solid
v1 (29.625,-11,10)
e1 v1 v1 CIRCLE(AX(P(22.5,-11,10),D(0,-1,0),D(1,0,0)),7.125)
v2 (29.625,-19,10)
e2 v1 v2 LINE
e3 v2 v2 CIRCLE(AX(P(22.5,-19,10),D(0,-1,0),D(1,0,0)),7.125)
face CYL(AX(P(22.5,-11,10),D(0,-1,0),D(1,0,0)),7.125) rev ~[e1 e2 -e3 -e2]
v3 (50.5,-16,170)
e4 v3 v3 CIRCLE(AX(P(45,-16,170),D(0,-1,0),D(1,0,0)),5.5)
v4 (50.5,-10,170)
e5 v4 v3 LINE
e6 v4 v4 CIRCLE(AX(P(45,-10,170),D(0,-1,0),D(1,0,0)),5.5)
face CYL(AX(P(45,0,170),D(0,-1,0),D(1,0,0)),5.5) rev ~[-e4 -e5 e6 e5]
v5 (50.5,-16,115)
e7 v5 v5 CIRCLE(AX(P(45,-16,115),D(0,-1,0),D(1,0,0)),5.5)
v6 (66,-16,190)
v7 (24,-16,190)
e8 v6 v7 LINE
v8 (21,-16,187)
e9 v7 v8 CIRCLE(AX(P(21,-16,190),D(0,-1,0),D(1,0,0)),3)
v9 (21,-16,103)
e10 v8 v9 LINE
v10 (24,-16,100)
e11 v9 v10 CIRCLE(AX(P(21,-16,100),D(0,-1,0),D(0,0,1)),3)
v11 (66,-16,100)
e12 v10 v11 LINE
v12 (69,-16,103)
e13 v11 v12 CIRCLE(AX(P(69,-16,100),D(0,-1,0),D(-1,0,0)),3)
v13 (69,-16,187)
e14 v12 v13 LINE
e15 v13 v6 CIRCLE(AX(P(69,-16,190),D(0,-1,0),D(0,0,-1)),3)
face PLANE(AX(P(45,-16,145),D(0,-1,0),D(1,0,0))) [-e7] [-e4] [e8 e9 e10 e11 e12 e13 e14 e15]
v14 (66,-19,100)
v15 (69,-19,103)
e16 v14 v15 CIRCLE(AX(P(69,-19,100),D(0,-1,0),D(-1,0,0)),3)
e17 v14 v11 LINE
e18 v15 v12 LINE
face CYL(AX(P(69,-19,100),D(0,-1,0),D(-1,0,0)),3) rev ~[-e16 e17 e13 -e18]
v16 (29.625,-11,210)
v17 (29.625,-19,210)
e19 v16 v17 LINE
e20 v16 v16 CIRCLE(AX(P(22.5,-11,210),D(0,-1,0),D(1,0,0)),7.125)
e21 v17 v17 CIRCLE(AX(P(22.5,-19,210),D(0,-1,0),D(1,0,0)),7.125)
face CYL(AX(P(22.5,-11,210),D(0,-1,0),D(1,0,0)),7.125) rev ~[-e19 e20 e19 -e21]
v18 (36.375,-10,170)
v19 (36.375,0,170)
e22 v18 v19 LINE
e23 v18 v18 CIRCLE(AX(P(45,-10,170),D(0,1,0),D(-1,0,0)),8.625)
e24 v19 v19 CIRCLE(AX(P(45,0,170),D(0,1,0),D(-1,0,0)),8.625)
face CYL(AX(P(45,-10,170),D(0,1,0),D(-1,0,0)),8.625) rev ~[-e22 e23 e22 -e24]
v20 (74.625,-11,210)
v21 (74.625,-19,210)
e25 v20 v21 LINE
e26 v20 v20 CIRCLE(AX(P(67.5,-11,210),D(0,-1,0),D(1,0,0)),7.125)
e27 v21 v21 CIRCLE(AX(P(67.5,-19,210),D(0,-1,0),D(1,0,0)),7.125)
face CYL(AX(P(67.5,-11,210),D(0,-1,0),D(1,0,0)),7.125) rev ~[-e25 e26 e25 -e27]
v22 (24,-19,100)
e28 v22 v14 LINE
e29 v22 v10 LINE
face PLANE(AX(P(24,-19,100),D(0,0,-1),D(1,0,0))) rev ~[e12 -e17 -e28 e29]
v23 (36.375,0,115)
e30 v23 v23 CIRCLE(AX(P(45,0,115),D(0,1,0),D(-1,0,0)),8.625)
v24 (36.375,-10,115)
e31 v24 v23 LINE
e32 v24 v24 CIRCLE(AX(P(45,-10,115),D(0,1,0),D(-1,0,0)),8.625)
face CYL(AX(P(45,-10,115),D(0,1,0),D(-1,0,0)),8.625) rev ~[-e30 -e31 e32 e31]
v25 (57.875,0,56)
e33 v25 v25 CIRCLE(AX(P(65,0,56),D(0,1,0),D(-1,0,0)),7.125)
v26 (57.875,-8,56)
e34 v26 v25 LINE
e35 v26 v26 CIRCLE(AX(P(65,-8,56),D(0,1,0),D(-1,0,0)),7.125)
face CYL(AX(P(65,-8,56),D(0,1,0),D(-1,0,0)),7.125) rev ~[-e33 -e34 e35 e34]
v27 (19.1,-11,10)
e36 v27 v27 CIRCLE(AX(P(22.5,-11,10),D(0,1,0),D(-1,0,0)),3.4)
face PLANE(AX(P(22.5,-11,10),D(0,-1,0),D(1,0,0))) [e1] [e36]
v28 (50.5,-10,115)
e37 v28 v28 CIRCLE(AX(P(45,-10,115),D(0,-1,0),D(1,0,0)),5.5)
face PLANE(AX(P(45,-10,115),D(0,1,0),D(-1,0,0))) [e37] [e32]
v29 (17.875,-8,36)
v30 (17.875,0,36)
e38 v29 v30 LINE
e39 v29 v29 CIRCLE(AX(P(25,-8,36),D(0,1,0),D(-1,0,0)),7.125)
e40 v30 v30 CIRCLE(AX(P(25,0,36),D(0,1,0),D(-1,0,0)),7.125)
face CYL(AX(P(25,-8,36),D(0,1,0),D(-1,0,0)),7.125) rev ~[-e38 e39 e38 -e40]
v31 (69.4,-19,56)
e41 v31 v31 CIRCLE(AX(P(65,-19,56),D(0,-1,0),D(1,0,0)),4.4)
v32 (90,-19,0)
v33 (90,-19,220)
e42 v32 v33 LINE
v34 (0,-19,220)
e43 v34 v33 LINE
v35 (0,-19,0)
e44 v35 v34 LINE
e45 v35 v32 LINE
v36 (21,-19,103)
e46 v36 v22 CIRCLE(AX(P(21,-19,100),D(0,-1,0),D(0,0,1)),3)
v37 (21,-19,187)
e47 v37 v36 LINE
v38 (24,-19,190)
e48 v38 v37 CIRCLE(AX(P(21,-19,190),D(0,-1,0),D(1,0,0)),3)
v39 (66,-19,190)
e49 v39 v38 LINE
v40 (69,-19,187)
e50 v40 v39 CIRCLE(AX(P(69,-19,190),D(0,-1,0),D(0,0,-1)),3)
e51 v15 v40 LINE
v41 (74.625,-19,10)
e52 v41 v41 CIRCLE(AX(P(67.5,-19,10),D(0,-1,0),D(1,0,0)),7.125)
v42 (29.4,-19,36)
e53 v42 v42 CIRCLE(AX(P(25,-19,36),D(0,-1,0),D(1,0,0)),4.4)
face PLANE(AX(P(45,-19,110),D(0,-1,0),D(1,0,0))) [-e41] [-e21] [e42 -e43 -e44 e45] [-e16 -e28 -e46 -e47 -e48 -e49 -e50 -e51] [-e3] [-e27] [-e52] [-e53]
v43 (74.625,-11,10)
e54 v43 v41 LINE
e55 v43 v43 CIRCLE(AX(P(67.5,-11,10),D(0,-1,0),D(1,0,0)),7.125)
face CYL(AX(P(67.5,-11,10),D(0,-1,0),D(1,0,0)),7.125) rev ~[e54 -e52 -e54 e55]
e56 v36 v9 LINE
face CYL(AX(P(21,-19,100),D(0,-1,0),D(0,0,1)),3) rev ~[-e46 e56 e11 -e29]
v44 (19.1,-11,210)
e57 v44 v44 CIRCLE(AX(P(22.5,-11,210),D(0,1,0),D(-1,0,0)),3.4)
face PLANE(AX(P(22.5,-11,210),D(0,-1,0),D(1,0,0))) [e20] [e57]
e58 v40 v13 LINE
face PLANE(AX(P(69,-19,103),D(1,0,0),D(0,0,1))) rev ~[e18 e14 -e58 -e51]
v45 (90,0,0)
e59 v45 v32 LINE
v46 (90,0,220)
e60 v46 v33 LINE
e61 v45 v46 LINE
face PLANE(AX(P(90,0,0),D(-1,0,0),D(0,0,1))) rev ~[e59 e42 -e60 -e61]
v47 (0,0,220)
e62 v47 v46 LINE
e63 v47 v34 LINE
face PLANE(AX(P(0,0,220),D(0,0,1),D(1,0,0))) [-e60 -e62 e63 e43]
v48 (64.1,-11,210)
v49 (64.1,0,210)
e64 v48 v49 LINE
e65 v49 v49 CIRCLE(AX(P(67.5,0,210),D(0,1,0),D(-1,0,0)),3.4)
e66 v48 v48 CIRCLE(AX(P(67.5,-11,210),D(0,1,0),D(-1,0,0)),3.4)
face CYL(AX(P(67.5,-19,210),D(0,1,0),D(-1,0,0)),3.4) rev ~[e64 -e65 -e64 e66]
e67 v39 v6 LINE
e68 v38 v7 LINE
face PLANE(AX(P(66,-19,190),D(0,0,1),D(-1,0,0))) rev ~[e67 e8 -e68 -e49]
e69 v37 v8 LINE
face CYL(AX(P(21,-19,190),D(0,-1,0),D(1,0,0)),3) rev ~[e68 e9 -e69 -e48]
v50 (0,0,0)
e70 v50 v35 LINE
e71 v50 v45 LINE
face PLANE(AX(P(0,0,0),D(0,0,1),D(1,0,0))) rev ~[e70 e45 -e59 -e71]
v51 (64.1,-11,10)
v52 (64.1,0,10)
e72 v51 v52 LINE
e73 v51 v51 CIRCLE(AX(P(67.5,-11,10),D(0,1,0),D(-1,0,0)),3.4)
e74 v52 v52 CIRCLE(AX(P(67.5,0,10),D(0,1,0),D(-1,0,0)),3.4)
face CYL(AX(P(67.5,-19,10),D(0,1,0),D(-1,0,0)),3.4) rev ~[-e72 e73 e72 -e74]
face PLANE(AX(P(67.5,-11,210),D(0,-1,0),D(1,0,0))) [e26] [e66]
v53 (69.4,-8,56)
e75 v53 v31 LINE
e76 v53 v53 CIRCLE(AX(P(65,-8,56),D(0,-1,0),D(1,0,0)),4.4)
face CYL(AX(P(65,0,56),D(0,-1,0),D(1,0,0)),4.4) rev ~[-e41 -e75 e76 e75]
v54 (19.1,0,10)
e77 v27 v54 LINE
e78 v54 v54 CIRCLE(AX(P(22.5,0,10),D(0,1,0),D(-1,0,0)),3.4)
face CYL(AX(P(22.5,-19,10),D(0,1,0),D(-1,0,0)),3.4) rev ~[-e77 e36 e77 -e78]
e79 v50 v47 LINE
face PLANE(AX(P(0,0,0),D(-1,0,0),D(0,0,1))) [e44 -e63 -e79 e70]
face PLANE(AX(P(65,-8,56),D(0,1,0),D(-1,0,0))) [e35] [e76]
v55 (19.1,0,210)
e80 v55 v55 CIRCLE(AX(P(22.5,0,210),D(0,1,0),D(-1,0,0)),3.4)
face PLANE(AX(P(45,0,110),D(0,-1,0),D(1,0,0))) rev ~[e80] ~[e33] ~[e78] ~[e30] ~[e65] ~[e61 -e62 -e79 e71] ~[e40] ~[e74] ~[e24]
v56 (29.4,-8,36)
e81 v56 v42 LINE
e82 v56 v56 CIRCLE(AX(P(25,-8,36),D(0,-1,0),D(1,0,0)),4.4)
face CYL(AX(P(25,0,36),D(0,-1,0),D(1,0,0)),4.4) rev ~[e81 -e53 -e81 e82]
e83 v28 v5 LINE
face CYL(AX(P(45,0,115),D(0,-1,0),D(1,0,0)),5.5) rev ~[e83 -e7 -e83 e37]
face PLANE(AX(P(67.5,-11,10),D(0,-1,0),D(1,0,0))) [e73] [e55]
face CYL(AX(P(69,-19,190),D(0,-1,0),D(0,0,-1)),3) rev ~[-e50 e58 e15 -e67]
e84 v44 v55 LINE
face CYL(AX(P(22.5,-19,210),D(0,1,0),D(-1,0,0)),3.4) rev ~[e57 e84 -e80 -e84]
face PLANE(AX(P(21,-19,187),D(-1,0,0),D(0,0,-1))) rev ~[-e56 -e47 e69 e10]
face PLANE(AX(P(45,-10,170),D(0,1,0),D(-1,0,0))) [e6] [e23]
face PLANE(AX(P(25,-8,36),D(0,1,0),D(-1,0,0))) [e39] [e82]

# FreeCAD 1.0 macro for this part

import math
import FreeCAD as App
import Part
import Sketcher

V = App.Vector


def add_polygon(sketch, points):
    """Adds a closed chain of lines whose ends are joined by coincident constraints."""
    first, n = sketch.GeometryCount, len(points)
    for a, b in zip(points, points[1:] + points[:1]):
        sketch.addGeometry(Part.LineSegment(App.Vector(*a, 0), App.Vector(*b, 0)), False)
    for i in range(n):
        sketch.addConstraint(Sketcher.Constraint("Coincident", first + i, 2, first + (i + 1) % n, 1))

doc = App.newDocument("Part")
body = doc.addObject("PartDesign::Body", "Body")

# Sketch on XZ plane
sketch1 = doc.addObject("Sketcher::SketchObject", "Sketch")
body.addObject(sketch1)
sketch1.AttachmentSupport = (doc.XZ_Plane, [""])
sketch1.MapMode = "FlatFace"
add_polygon(sketch1, [(0, 220), (0, 0), (90, 0), (90, 220)])  # lines 0-3
sketch1.addConstraint([
    Sketcher.Constraint("Vertical", 0),
    Sketcher.Constraint("Horizontal", 1),
    Sketcher.Constraint("Vertical", 2),
    Sketcher.Constraint("Horizontal", 3),
    Sketcher.Constraint("Coincident", 0, 2, -1, 1),
    Sketcher.Constraint("DistanceX", 1, 1, 1, 2, 90.0),
    Sketcher.Constraint("DistanceY", 0, 2, 0, 1, 220.0),
])
pad1 = doc.addObject("PartDesign::Pad", "Pad")
body.addObject(pad1)
pad1.Profile = sketch1
pad1.Length = 19

# Sketch on XZ plane
sketch2 = doc.addObject("Sketcher::SketchObject", "Sketch001")
body.addObject(sketch2)
sketch2.AttachmentSupport = (doc.XZ_Plane, [""])
sketch2.MapMode = "FlatFace"
sketch2.AttachmentOffset = App.Placement(V(0, 0, 19), App.Rotation())
sketch2.addGeometry([
    Part.Circle(V(22.5, 210, 0), V(0, 0, 1), 3.4),
    Part.Circle(V(67.5, 210, 0), V(0, 0, 1), 3.4),
    Part.Circle(V(22.5, 10, 0), V(0, 0, 1), 3.4),
    Part.Circle(V(67.5, 10, 0), V(0, 0, 1), 3.4),
], False)
sketch2.addConstraint([
    Sketcher.Constraint("Equal", 0, 1),
    Sketcher.Constraint("Equal", 1, 2),
    Sketcher.Constraint("Equal", 2, 3),
    Sketcher.Constraint("Horizontal", 0, 3, 1, 3),
    Sketcher.Constraint("Horizontal", 2, 3, 3, 3),
    Sketcher.Constraint("Vertical", 0, 3, 2, 3),
    Sketcher.Constraint("Vertical", 1, 3, 3, 3),
    Sketcher.Constraint("Diameter", 0, 6.8),
    Sketcher.Constraint("DistanceY", -1, 1, 0, 3, 210.0),
    Sketcher.Constraint("DistanceY", -1, 1, 2, 3, 10.0),
    Sketcher.Constraint("DistanceX", 0, 3, 1, 3, 45.0),
    Sketcher.Constraint("DistanceX", -1, 1, 0, 3, 22.5),
])
doc.recompute()
hole = doc.addObject("PartDesign::Hole", "Hole")
body.addObject(hole)
hole.Profile = sketch2
hole.ThreadType = "None"
hole.Diameter = 6.8
hole.DepthType = "ThroughAll"
hole.HoleCutType = "Counterbore"
hole.HoleCutDiameter = 14.25
hole.HoleCutDepth = 8

# Sketch on XZ plane
sketch3 = doc.addObject("Sketcher::SketchObject", "Sketch002")
body.addObject(sketch3)
sketch3.AttachmentSupport = (doc.XZ_Plane, [""])
sketch3.MapMode = "FlatFace"
sketch3.AttachmentOffset = App.Placement(V(0, 0, 19), App.Rotation())
sketch3.addGeometry([
    Part.ArcOfCircle(Part.Circle(V(21, 190, 0), V(0, 0, 1), 3), math.radians(0), math.radians(270)),  # 0
    Part.LineSegment(V(21, 187, 0), V(21, 103, 0)),  # 1
    Part.ArcOfCircle(Part.Circle(V(21, 100, 0), V(0, 0, 1), 3), math.radians(90), math.radians(360)),  # 2
    Part.LineSegment(V(24, 100, 0), V(66, 100, 0)),  # 3
    Part.ArcOfCircle(Part.Circle(V(69, 100, 0), V(0, 0, 1), 3), math.radians(180), math.radians(450)),  # 4
    Part.LineSegment(V(69, 103, 0), V(69, 187, 0)),  # 5
    Part.ArcOfCircle(Part.Circle(V(69, 190, 0), V(0, 0, 1), 3), math.radians(-90), math.radians(180)),  # 6
    Part.LineSegment(V(66, 190, 0), V(24, 190, 0)),  # 7
], False)
sketch3.addConstraint([
    Sketcher.Constraint("Coincident", 0, 2, 1, 1),
    Sketcher.Constraint("Coincident", 1, 2, 2, 1),
    Sketcher.Constraint("Coincident", 2, 2, 3, 1),
    Sketcher.Constraint("Coincident", 3, 2, 4, 1),
    Sketcher.Constraint("Coincident", 4, 2, 5, 1),
    Sketcher.Constraint("Coincident", 5, 2, 6, 1),
    Sketcher.Constraint("Coincident", 6, 2, 7, 1),
    Sketcher.Constraint("Coincident", 7, 2, 0, 1),
    Sketcher.Constraint("Vertical", 1),
    Sketcher.Constraint("Horizontal", 3),
    Sketcher.Constraint("Vertical", 5),
    Sketcher.Constraint("Horizontal", 7),
    Sketcher.Constraint("Equal", 0, 2),
    Sketcher.Constraint("Equal", 2, 4),
    Sketcher.Constraint("Equal", 4, 6),
    Sketcher.Constraint("Horizontal", 2, 3, 4, 3),
    Sketcher.Constraint("Horizontal", 0, 3, 6, 3),
    Sketcher.Constraint("Horizontal", 4, 3, 2, 2),
    Sketcher.Constraint("Horizontal", 0, 3, 6, 2),
    Sketcher.Constraint("Vertical", 0, 3, 2, 3),
    Sketcher.Constraint("Vertical", 4, 3, 6, 3),
    Sketcher.Constraint("Vertical", 2, 3, 0, 2),
    Sketcher.Constraint("Vertical", 6, 3, 4, 2),
    Sketcher.Constraint("Radius", 0, 3.0),
    Sketcher.Constraint("DistanceX", 3, 1, 3, 2, 42.0),
    Sketcher.Constraint("DistanceY", 1, 2, 1, 1, 84.0),
    Sketcher.Constraint("DistanceX", -1, 1, 0, 3, 21.0),
    Sketcher.Constraint("DistanceY", -1, 1, 0, 3, 190.0),
])
pocket1 = doc.addObject("PartDesign::Pocket", "Pocket")
body.addObject(pocket1)
pocket1.Profile = sketch3
pocket1.Length = 3

# Sketch on XZ plane
sketch4 = doc.addObject("Sketcher::SketchObject", "Sketch003")
body.addObject(sketch4)
sketch4.AttachmentSupport = (doc.XZ_Plane, [""])
sketch4.MapMode = "FlatFace"
sketch4.addGeometry([
    Part.Circle(V(45, 170, 0), V(0, 0, 1), 6),
    Part.Circle(V(45, 115, 0), V(0, 0, 1), 6),
], False)
sketch4.addConstraint([
    Sketcher.Constraint("Equal", 0, 1),
    Sketcher.Constraint("Vertical", 0, 3, 1, 3),
    Sketcher.Constraint("Diameter", 0, 11.0),
    Sketcher.Constraint("DistanceX", -1, 1, 0, 3, 45.0),
    Sketcher.Constraint("DistanceY", -1, 1, 0, 3, 170.0),
    Sketcher.Constraint("DistanceY", -1, 1, 1, 3, 115.0),
])
doc.recompute()
hole2 = doc.addObject("PartDesign::Hole", "Hole001")
body.addObject(hole2)
hole2.Profile = sketch4
hole2.ThreadType = "None"
hole2.Diameter = 11
hole2.DepthType = "ThroughAll"
hole2.HoleCutType = "Counterbore"
hole2.HoleCutDiameter = 17.25
hole2.HoleCutDepth = 10
hole2.Reversed = True

# Sketch on XZ plane
sketch5 = doc.addObject("Sketcher::SketchObject", "Sketch004")
body.addObject(sketch5)
sketch5.AttachmentSupport = (doc.XZ_Plane, [""])
sketch5.MapMode = "FlatFace"
sketch5.addGeometry([
    Part.Circle(V(65, 56, 0), V(0, 0, 1), 4.4),
    Part.Circle(V(25, 36, 0), V(0, 0, 1), 4.4),
], False)
sketch5.addConstraint([
    Sketcher.Constraint("Equal", 0, 1),
    Sketcher.Constraint("Diameter", 0, 8.8),
    Sketcher.Constraint("DistanceX", -1, 1, 0, 3, 65.0),
    Sketcher.Constraint("DistanceY", -1, 1, 0, 3, 56.0),
    Sketcher.Constraint("DistanceX", -1, 1, 1, 3, 25.0),
    Sketcher.Constraint("DistanceY", -1, 1, 1, 3, 36.0),
])
doc.recompute()
hole3 = doc.addObject("PartDesign::Hole", "Hole002")
body.addObject(hole3)
hole3.Profile = sketch5
hole3.ThreadType = "None"
hole3.Diameter = 8.8
hole3.DepthType = "ThroughAll"
hole3.HoleCutType = "Counterbore"
hole3.HoleCutDiameter = 14.25
hole3.HoleCutDepth = 8
hole3.Reversed = True

doc.recompute()
